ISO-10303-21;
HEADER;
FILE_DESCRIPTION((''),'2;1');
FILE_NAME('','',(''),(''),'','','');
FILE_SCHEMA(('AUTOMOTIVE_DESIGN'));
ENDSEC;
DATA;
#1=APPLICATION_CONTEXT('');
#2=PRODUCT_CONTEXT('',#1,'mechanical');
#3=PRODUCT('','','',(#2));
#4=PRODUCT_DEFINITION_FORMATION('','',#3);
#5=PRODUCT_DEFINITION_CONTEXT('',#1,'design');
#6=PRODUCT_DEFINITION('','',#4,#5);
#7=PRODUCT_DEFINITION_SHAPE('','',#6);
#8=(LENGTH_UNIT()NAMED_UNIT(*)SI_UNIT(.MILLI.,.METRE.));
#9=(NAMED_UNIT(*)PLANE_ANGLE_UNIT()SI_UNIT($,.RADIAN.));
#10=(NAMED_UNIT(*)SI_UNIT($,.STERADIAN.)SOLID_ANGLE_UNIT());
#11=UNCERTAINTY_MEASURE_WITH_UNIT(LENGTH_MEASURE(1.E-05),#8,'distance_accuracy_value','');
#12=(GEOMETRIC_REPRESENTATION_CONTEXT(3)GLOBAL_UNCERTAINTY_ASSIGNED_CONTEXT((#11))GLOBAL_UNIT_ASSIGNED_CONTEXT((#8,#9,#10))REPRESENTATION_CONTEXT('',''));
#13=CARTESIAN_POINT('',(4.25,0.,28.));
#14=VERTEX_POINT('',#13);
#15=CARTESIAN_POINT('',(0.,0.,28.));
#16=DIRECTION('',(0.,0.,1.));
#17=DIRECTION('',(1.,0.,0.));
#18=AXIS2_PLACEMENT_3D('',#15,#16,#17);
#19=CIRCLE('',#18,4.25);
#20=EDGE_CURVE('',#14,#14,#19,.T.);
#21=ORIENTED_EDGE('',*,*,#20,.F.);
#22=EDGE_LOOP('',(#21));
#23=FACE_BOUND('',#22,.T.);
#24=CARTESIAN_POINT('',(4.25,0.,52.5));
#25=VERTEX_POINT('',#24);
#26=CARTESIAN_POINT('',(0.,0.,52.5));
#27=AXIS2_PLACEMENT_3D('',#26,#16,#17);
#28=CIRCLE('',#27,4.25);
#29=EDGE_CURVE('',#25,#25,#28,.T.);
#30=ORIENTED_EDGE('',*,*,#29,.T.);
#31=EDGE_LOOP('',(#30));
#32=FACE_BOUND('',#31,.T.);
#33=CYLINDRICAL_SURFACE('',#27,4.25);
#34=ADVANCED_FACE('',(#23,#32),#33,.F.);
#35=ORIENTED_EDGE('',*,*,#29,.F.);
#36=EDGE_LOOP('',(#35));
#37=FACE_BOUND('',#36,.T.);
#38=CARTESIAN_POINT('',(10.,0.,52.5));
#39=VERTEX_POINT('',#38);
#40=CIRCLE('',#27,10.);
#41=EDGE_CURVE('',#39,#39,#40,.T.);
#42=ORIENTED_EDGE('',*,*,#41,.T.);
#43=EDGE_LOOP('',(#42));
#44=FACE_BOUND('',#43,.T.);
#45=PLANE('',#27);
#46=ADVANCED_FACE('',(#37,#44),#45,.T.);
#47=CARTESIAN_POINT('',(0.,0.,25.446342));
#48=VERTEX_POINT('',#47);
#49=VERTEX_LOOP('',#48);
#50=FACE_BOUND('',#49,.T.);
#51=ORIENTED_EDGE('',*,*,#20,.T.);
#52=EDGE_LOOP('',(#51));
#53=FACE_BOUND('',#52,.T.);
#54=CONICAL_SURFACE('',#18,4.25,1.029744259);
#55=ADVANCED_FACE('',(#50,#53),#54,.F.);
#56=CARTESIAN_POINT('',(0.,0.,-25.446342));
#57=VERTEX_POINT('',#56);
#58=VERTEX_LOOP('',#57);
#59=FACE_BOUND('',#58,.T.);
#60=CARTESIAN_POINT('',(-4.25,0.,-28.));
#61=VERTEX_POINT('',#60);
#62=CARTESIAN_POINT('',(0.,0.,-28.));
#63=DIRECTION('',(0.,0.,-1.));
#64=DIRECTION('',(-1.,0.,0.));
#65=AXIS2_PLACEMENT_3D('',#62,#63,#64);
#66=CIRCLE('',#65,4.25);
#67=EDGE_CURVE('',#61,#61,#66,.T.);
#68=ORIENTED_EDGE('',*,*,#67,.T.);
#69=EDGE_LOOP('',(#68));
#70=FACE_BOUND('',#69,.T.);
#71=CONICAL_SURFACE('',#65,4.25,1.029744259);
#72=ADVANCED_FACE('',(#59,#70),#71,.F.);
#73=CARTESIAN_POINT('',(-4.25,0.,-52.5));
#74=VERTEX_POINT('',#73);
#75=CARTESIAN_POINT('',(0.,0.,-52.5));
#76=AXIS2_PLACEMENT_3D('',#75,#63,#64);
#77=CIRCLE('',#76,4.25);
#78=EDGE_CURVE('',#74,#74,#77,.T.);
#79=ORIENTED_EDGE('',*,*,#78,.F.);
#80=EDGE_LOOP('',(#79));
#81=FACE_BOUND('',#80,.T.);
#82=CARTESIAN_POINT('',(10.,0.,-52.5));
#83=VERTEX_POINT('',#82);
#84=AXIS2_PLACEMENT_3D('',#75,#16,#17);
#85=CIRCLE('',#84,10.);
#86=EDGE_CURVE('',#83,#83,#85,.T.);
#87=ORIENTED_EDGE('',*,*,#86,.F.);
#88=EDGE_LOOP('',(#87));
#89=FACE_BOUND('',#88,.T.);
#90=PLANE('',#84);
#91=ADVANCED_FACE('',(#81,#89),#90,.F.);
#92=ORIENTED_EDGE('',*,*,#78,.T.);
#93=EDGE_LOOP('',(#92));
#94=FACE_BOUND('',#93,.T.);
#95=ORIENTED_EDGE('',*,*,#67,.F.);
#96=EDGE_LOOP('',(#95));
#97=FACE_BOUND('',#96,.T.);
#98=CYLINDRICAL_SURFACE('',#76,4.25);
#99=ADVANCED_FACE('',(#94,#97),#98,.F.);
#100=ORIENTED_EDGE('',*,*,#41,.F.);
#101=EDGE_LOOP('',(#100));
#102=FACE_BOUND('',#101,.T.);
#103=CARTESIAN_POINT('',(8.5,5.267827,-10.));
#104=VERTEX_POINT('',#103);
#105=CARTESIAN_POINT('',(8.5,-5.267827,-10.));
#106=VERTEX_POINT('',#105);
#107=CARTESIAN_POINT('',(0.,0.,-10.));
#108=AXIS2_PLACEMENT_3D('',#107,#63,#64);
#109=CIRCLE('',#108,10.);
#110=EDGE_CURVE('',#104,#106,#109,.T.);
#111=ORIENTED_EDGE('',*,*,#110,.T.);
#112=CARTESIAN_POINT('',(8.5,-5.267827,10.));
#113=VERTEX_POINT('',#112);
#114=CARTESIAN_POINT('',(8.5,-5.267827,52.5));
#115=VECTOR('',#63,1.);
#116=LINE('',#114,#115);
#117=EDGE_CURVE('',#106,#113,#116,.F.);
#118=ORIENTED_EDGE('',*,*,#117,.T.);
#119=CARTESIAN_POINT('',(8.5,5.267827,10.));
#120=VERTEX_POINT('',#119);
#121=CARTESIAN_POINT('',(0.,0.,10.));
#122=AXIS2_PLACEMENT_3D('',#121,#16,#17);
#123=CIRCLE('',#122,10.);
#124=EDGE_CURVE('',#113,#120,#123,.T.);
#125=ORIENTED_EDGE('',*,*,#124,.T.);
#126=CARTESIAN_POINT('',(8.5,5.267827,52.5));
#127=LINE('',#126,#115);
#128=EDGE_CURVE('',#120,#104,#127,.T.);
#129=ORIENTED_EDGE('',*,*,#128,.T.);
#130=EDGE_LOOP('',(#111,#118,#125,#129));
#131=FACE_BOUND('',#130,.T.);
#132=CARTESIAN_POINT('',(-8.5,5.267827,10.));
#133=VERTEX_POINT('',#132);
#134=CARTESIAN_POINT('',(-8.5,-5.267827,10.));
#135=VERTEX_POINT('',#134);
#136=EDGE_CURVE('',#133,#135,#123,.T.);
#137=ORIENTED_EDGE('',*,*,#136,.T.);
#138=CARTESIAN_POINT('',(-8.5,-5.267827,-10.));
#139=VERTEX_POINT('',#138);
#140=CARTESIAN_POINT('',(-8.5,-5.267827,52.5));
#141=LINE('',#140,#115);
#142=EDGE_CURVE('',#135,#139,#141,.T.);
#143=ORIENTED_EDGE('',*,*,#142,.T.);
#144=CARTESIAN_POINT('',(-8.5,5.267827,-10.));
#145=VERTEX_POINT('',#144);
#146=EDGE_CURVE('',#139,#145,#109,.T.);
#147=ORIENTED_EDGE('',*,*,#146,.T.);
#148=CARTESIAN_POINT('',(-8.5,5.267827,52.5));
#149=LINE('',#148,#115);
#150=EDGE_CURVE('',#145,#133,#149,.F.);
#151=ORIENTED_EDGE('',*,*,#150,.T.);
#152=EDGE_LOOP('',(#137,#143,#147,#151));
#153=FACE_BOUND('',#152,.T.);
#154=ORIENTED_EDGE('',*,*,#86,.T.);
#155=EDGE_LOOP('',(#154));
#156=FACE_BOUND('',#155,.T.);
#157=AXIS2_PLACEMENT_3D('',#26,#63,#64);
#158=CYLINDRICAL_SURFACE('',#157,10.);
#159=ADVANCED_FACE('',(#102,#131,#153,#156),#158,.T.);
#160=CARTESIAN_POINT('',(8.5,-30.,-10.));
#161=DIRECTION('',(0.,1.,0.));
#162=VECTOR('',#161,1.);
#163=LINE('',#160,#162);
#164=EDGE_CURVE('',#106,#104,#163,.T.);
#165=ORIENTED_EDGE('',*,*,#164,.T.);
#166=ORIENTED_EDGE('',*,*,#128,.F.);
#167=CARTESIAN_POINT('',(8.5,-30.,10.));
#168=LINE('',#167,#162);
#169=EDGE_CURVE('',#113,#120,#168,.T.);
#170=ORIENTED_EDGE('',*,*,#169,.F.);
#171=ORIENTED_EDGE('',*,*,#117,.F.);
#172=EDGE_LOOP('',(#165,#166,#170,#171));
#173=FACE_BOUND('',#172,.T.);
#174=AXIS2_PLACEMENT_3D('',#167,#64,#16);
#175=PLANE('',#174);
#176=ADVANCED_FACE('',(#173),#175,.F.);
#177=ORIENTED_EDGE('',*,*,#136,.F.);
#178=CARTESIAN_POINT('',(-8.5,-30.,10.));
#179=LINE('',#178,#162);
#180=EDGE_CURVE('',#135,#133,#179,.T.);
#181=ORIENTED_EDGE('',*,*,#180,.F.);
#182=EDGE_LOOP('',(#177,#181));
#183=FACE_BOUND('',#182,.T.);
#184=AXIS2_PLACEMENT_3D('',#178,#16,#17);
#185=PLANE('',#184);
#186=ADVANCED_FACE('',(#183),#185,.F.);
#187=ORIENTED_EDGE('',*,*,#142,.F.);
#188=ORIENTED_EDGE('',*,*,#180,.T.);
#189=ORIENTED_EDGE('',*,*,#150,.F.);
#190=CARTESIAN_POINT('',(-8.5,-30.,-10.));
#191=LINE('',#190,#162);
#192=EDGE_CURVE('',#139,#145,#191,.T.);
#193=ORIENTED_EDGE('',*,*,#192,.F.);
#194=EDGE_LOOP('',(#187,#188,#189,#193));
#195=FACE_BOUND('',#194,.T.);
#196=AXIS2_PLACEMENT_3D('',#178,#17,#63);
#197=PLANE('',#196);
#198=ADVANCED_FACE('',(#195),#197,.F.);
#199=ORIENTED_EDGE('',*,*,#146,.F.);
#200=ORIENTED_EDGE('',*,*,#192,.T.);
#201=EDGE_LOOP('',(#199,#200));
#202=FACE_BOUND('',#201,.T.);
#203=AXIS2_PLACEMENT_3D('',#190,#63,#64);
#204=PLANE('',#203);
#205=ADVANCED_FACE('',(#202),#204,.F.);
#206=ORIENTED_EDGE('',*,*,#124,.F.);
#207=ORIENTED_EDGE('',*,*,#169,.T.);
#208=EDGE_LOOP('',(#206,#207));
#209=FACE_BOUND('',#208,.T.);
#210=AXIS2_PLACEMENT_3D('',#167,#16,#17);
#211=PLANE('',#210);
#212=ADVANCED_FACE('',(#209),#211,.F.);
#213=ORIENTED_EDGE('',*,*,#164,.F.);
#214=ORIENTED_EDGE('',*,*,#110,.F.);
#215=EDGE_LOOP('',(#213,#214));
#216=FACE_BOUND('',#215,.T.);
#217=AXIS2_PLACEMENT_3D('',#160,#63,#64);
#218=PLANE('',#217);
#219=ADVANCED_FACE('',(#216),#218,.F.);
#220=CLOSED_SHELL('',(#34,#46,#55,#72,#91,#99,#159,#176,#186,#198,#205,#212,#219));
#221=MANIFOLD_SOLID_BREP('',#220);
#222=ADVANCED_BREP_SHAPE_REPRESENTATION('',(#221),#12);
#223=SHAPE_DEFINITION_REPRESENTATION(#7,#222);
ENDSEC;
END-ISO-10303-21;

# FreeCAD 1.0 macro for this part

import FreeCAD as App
import Part
import Sketcher
from FreeCAD import Vector
Q = App.Units.Quantity

doc = App.newDocument("Part")
body = doc.addObject("PartDesign::Body", "Body")

# Sketch on XY plane
sketch1 = body.newObject("Sketcher::SketchObject", "Sketch")
sketch1.AttachmentSupport = (doc.getObject("XY_Plane"), [""])
sketch1.MapMode = "FlatFace"
sketch1.addGeometry(Part.Circle(Vector(0, 0, 0), Vector(0, 0, 1), 10), False)
sketch1.addConstraint([
    Sketcher.Constraint("Coincident", 0, 3, -1, 1),
    Sketcher.Constraint("Diameter", 0, Q("20 mm")),
])
pad1 = body.newObject("PartDesign::Pad", "Pad")
pad1.Profile = sketch1
pad1.Length = 105
pad1.Midplane = True

# Sketch on XZ plane
sketch2 = body.newObject("Sketcher::SketchObject", "Sketch001")
sketch2.AttachmentSupport = (doc.getObject("XZ_Plane"), [""])
sketch2.MapMode = "FlatFace"
sketch2.addGeometry([
    Part.LineSegment(Vector(-11.5, -10, 0), Vector(-11.5, 10, 0)),  # 0
    Part.LineSegment(Vector(-11.5, 10, 0), Vector(-8.5, 10, 0)),  # 1
    Part.LineSegment(Vector(-8.5, 10, 0), Vector(-8.5, -10, 0)),  # 2
    Part.LineSegment(Vector(-8.5, -10, 0), Vector(-11.5, -10, 0)),  # 3
    Part.LineSegment(Vector(8.5, -10, 0), Vector(8.5, 10, 0)),  # 4
    Part.LineSegment(Vector(8.5, 10, 0), Vector(11.5, 10, 0)),  # 5
    Part.LineSegment(Vector(11.5, 10, 0), Vector(11.5, -10, 0)),  # 6
    Part.LineSegment(Vector(11.5, -10, 0), Vector(8.5, -10, 0)),  # 7
], False)
sketch2.addConstraint([
    Sketcher.Constraint("Coincident", 0, 2, 1, 1),
    Sketcher.Constraint("Coincident", 1, 2, 2, 1),
    Sketcher.Constraint("Coincident", 2, 2, 3, 1),
    Sketcher.Constraint("Coincident", 3, 2, 0, 1),
    Sketcher.Constraint("Coincident", 4, 2, 5, 1),
    Sketcher.Constraint("Coincident", 5, 2, 6, 1),
    Sketcher.Constraint("Coincident", 6, 2, 7, 1),
    Sketcher.Constraint("Coincident", 7, 2, 4, 1),
    Sketcher.Constraint("Vertical", 0),
    Sketcher.Constraint("Horizontal", 1),
    Sketcher.Constraint("Vertical", 2),
    Sketcher.Constraint("Horizontal", 3),
    Sketcher.Constraint("Vertical", 4),
    Sketcher.Constraint("Horizontal", 5),
    Sketcher.Constraint("Vertical", 6),
    Sketcher.Constraint("Horizontal", 7),
    Sketcher.Constraint("Symmetric", 2, 2, 4, 2, -1, 1),
    Sketcher.Constraint("Symmetric", 0, 2, 6, 2, -1, 1),
    Sketcher.Constraint("Horizontal", 1, 2, 4, 2),
    Sketcher.Constraint("DistanceX", 1, 1, 1, 2, Q("3 mm")),
    Sketcher.Constraint("DistanceY", 0, 1, 0, 2, Q("20 mm")),
    Sketcher.Constraint("DistanceX", 1, 2, 4, 2, Q("17 mm")),
])
pocket1 = body.newObject("PartDesign::Pocket", "Pocket")
pocket1.Profile = sketch2
pocket1.Length = 60
pocket1.Midplane = True

# Sketch on YZ plane
sketch3 = body.newObject("Sketcher::SketchObject", "Sketch002")
sketch3.AttachmentSupport = (doc.getObject("YZ_Plane"), [""])
sketch3.MapMode = "FlatFace"
sketch3.addGeometry([
    Part.LineSegment(Vector(0, 25.446342, 0), Vector(0, 52.5, 0)),
    Part.LineSegment(Vector(0, 52.5, 0), Vector(-4.25, 52.5, 0)),
    Part.LineSegment(Vector(-4.25, 52.5, 0), Vector(-4.25, 28, 0)),
    Part.LineSegment(Vector(-4.25, 28, 0), Vector(0, 25.446342, 0)),
], False)
sketch3.addConstraint([
    Sketcher.Constraint("Coincident", 0, 2, 1, 1),
    Sketcher.Constraint("Coincident", 1, 2, 2, 1),
    Sketcher.Constraint("Coincident", 2, 2, 3, 1),
    Sketcher.Constraint("Coincident", 3, 2, 0, 1),
    Sketcher.Constraint("Vertical", 0),
    Sketcher.Constraint("Horizontal", 1),
    Sketcher.Constraint("Vertical", 2),
    Sketcher.Constraint("PointOnObject", 0, 2, -2),
    Sketcher.Constraint("Angle", 3, Q("-31 deg")),
    Sketcher.Constraint("DistanceY", 2, 2, 2, 1, Q("24.5 mm")),
    Sketcher.Constraint("DistanceY", -1, 1, 2, 2, Q("28 mm")),
    Sketcher.Constraint("DistanceX", 1, 2, 1, 1, Q("4.25 mm")),
])
groove = body.newObject("PartDesign::Groove", "Groove")
groove.Profile = sketch3
groove.ReferenceAxis = (sketch3, ["V_Axis"])
groove.Angle = 360
doc.recompute()

mirrored = body.newObject("PartDesign::Mirrored", "Mirrored")
mirrored.Originals = [groove]
mirrored.MirrorPlane = (doc.getObject("XY_Plane"), [""])
body.Tip = mirrored

doc.recompute()
